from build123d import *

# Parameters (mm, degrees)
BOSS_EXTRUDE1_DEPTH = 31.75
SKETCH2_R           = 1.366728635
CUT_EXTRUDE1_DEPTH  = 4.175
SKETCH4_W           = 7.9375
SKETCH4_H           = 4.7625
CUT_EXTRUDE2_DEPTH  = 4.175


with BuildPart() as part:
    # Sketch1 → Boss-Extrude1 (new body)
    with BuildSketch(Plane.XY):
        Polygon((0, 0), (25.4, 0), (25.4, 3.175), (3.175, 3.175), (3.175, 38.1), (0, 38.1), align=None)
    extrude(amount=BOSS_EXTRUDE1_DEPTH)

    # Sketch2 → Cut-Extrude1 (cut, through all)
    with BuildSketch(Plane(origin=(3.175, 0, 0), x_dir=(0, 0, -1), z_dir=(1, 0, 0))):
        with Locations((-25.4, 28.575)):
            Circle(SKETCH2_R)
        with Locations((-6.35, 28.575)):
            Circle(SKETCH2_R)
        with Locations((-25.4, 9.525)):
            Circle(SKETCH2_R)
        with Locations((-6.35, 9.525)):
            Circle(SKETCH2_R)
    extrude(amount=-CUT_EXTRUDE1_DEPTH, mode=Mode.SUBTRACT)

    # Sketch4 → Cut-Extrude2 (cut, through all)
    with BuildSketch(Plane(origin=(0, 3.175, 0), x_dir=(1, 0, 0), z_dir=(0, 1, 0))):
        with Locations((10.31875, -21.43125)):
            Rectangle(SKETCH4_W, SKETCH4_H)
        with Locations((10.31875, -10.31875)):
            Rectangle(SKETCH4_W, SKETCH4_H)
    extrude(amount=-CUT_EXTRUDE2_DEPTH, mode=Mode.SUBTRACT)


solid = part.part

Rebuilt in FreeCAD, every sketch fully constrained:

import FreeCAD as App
import Part
import Sketcher

V = App.Vector
Q = App.Units.Quantity

doc = App.newDocument("Part")
body = doc.addObject("PartDesign::Body", "Body")

# Sketch on XY plane
sketch1 = body.newObject("Sketcher::SketchObject", "Sketch")
sketch1.AttachmentSupport = (doc.getObject("XY_Plane"), [""])
sketch1.MapMode = "FlatFace"
sketch1.addGeometry(Part.LineSegment(V(0, 0, 0), V(25.4, 0, 0)), False)
sketch1.addGeometry(Part.LineSegment(V(25.4, 0, 0), V(25.4, 3.175, 0)), False)
sketch1.addGeometry(Part.LineSegment(V(25.4, 3.175, 0), V(3.175, 3.175, 0)), False)
sketch1.addGeometry(Part.LineSegment(V(3.175, 3.175, 0), V(3.175, 38.1, 0)), False)
sketch1.addGeometry(Part.LineSegment(V(3.175, 38.1, 0), V(0, 38.1, 0)), False)
sketch1.addGeometry(Part.LineSegment(V(0, 38.1, 0), V(0, 0, 0)), False)
sketch1.addConstraint(Sketcher.Constraint("Coincident", 0, 2, 1, 1))
sketch1.addConstraint(Sketcher.Constraint("Coincident", 1, 2, 2, 1))
sketch1.addConstraint(Sketcher.Constraint("Coincident", 2, 2, 3, 1))
sketch1.addConstraint(Sketcher.Constraint("Coincident", 3, 2, 4, 1))
sketch1.addConstraint(Sketcher.Constraint("Coincident", 4, 2, 5, 1))
sketch1.addConstraint(Sketcher.Constraint("Coincident", 5, 2, 0, 1))
sketch1.addConstraint(Sketcher.Constraint("Horizontal", 0))
sketch1.addConstraint(Sketcher.Constraint("Vertical", 1))
sketch1.addConstraint(Sketcher.Constraint("Horizontal", 2))
sketch1.addConstraint(Sketcher.Constraint("Vertical", 3))
sketch1.addConstraint(Sketcher.Constraint("Horizontal", 4))
sketch1.addConstraint(Sketcher.Constraint("Vertical", 5))
sketch1.addConstraint(Sketcher.Constraint("Coincident", 5, 2, -1, 1))
sketch1.addConstraint(Sketcher.Constraint("Equal", 4, 1))
sketch1.addConstraint(Sketcher.Constraint("DistanceX", 0, 1, 0, 2, Q("1 in")))
sketch1.addConstraint(Sketcher.Constraint("DistanceY", 5, 2, 5, 1, Q("1.5 in")))
sketch1.addConstraint(Sketcher.Constraint("DistanceX", 2, 2, 2, 1, Q("0.875 in")))
pad1 = body.newObject("PartDesign::Pad", "Pad")
pad1.Profile = sketch1
pad1.Length = Q("1.25 in")

# Sketch on YZ plane
sketch2 = body.newObject("Sketcher::SketchObject", "Sketch001")
sketch2.AttachmentSupport = (doc.getObject("YZ_Plane"), [""])
sketch2.MapMode = "FlatFace"
sketch2.AttachmentOffset = App.Placement(V(0, 0, 0.125 * 25.4), App.Rotation())
sketch2.addGeometry(Part.Circle(V(28.575, 25.4, 0), V(0, 0, 1), 1.366729), False)
sketch2.addGeometry(Part.Circle(V(28.575, 6.35, 0), V(0, 0, 1), 1.366729), False)
sketch2.addGeometry(Part.Circle(V(9.525, 25.4, 0), V(0, 0, 1), 1.366729), False)
sketch2.addGeometry(Part.Circle(V(9.525, 6.35, 0), V(0, 0, 1), 1.366729), False)
sketch2.addConstraint(Sketcher.Constraint("Equal", 0, 1))
sketch2.addConstraint(Sketcher.Constraint("Equal", 1, 2))
sketch2.addConstraint(Sketcher.Constraint("Equal", 2, 3))
sketch2.addConstraint(Sketcher.Constraint("Horizontal", 0, 3, 2, 3))
sketch2.addConstraint(Sketcher.Constraint("Horizontal", 1, 3, 3, 3))
sketch2.addConstraint(Sketcher.Constraint("Vertical", 0, 3, 1, 3))
sketch2.addConstraint(Sketcher.Constraint("Vertical", 2, 3, 3, 3))
sketch2.addConstraint(Sketcher.Constraint("DistanceY", -1, 1, 0, 3, Q("1 in")))
sketch2.addConstraint(Sketcher.Constraint("DistanceY", -1, 1, 1, 3, Q("0.25 in")))
sketch2.addConstraint(Sketcher.Constraint("DistanceX", 2, 3, 0, 3, Q("0.75 in")))
sketch2.addConstraint(Sketcher.Constraint("DistanceX", -1, 1, 0, 3, Q("1.125 in")))
sketch2.addConstraint(Sketcher.Constraint("Diameter", 0, 2.733457))
pocket1 = body.newObject("PartDesign::Pocket", "Pocket")
pocket1.Profile = sketch2
pocket1.Type = "ThroughAll"

# Sketch on XZ plane
sketch3 = body.newObject("Sketcher::SketchObject", "Sketch002")
sketch3.AttachmentSupport = (doc.getObject("XZ_Plane"), [""])
sketch3.MapMode = "FlatFace"
sketch3.AttachmentOffset = App.Placement(V(0, 0, -0.125 * 25.4), App.Rotation())
sketch3.addGeometry(Part.LineSegment(V(6.35, 19.05, 0), V(6.35, 23.8125, 0)), False)
sketch3.addGeometry(Part.LineSegment(V(6.35, 23.8125, 0), V(14.2875, 23.8125, 0)), False)
sketch3.addGeometry(Part.LineSegment(V(14.2875, 23.8125, 0), V(14.2875, 19.05, 0)), False)
sketch3.addGeometry(Part.LineSegment(V(14.2875, 19.05, 0), V(6.35, 19.05, 0)), False)
sketch3.addGeometry(Part.LineSegment(V(6.35, 7.9375, 0), V(6.35, 12.7, 0)), False)
sketch3.addGeometry(Part.LineSegment(V(6.35, 12.7, 0), V(14.2875, 12.7, 0)), False)
sketch3.addGeometry(Part.LineSegment(V(14.2875, 12.7, 0), V(14.2875, 7.9375, 0)), False)
sketch3.addGeometry(Part.LineSegment(V(14.2875, 7.9375, 0), V(6.35, 7.9375, 0)), False)
sketch3.addConstraint(Sketcher.Constraint("Coincident", 0, 2, 1, 1))
sketch3.addConstraint(Sketcher.Constraint("Coincident", 1, 2, 2, 1))
sketch3.addConstraint(Sketcher.Constraint("Coincident", 2, 2, 3, 1))
sketch3.addConstraint(Sketcher.Constraint("Coincident", 3, 2, 0, 1))
sketch3.addConstraint(Sketcher.Constraint("Coincident", 4, 2, 5, 1))
sketch3.addConstraint(Sketcher.Constraint("Coincident", 5, 2, 6, 1))
sketch3.addConstraint(Sketcher.Constraint("Coincident", 6, 2, 7, 1))
sketch3.addConstraint(Sketcher.Constraint("Coincident", 7, 2, 4, 1))
sketch3.addConstraint(Sketcher.Constraint("Vertical", 0))
sketch3.addConstraint(Sketcher.Constraint("Horizontal", 1))
sketch3.addConstraint(Sketcher.Constraint("Vertical", 2))
sketch3.addConstraint(Sketcher.Constraint("Horizontal", 3))
sketch3.addConstraint(Sketcher.Constraint("Vertical", 4))
sketch3.addConstraint(Sketcher.Constraint("Horizontal", 5))
sketch3.addConstraint(Sketcher.Constraint("Vertical", 6))
sketch3.addConstraint(Sketcher.Constraint("Horizontal", 7))
sketch3.addConstraint(Sketcher.Constraint("Vertical", 3, 2, 4, 2))
sketch3.addConstraint(Sketcher.Constraint("Vertical", 2, 2, 5, 2))
sketch3.addConstraint(Sketcher.Constraint("Equal", 2, 4))
sketch3.addConstraint(Sketcher.Constraint("DistanceY", -1, 1, 4, 2, Q("0.5 in")))
sketch3.addConstraint(Sketcher.Constraint("DistanceX", 1, 1, 1, 2, Q("0.3125 in")))
sketch3.addConstraint(Sketcher.Constraint("DistanceY", 0, 1, 0, 2, Q("0.1875 in")))
sketch3.addConstraint(Sketcher.Constraint("DistanceX", -1, 1, 0, 2, Q("0.25 in")))
sketch3.addConstraint(Sketcher.Constraint("DistanceY", -1, 1, 2, 2, Q("0.75 in")))
pocket2 = body.newObject("PartDesign::Pocket", "Pocket001")
pocket2.Profile = sketch3
pocket2.Type = "ThroughAll"
pocket2.Reversed = True

doc.recompute()
